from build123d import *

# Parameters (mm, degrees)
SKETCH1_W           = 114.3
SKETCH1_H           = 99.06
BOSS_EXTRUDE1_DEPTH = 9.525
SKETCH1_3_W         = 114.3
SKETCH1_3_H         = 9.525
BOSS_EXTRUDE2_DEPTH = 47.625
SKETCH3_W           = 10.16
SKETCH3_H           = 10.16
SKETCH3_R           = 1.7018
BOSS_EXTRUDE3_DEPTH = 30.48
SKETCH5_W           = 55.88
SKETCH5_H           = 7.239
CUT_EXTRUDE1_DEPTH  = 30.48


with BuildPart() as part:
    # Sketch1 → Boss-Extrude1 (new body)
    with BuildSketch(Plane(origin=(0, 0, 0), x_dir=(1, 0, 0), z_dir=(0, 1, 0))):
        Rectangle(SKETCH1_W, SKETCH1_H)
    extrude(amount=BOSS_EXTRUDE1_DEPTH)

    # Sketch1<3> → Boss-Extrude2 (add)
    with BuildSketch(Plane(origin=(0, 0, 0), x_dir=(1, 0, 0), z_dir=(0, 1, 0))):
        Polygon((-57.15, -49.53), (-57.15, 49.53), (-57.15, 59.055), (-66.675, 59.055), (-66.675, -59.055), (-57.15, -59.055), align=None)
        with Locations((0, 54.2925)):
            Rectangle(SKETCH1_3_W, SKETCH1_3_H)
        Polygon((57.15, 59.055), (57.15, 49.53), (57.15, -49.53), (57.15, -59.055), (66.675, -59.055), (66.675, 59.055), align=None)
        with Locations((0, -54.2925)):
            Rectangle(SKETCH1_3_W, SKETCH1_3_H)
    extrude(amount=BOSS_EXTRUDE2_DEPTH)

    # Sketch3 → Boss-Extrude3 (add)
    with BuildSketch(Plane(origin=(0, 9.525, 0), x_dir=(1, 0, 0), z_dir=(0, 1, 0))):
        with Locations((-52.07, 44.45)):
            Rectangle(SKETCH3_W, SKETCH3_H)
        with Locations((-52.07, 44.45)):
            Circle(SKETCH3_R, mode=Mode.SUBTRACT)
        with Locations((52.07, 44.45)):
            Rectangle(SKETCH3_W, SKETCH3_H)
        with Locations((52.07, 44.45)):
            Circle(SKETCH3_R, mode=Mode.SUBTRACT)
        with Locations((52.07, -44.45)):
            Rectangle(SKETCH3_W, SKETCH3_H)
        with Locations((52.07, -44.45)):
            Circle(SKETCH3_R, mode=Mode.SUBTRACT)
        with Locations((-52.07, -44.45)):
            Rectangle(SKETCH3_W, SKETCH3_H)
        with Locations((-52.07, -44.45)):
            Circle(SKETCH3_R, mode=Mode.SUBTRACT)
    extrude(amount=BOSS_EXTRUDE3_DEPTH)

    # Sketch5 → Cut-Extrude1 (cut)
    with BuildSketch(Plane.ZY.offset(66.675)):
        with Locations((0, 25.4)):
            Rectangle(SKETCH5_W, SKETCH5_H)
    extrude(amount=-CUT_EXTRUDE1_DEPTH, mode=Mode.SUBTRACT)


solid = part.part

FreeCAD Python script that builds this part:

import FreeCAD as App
import Part
import Sketcher
Q = App.Units.Quantity


def add_polygon(sketch, points):
    """Adds a closed chain of lines whose ends are joined by coincident constraints."""
    first, n = sketch.GeometryCount, len(points)
    for a, b in zip(points, points[1:] + points[:1]):
        sketch.addGeometry(Part.LineSegment(App.Vector(*a, 0), App.Vector(*b, 0)), False)
    for i in range(n):
        sketch.addConstraint(Sketcher.Constraint("Coincident", first + i, 2, first + (i + 1) % n, 1))

doc = App.newDocument("Part")
body = doc.addObject("PartDesign::Body", "Body")

sketch1 = body.newObject("Sketcher::SketchObject", "Sketch")
sketch1.AttachmentSupport = (doc.getObject("XZ_Plane"), [""])
sketch1.MapMode = "FlatFace"
add_polygon(sketch1, [(-57, -50), (-57, 50), (57, 50), (57, -50)])
sketch1.addConstraint([
    Sketcher.Constraint("Vertical", 0),
    Sketcher.Constraint("Horizontal", 1),
    Sketcher.Constraint("Vertical", 2),
    Sketcher.Constraint("Horizontal", 3),
    Sketcher.Constraint("Symmetric", 0, 2, 2, 2, -1, 1),
    Sketcher.Constraint("DistanceX", 1, 1, 1, 2, Q("4.5 in")),
    Sketcher.Constraint("DistanceY", 0, 1, 0, 2, Q("3.9 in")),
])
pad1 = body.newObject("PartDesign::Pad", "Pad")
pad1.Profile = sketch1
pad1.Length = Q("0.375 in")
pad1.Reversed = True

sketch2 = body.newObject("Sketcher::SketchObject", "Sketch001")
sketch2.AttachmentSupport = (doc.getObject("XZ_Plane"), [""])
sketch2.MapMode = "FlatFace"
add_polygon(sketch2, [(-67, -59), (-67, 59), (67, 59), (67, -59)])
add_polygon(sketch2, [(-57, 50), (-57, -50), (57, -50), (57, 50)])
sketch2.addConstraint([
    Sketcher.Constraint("Vertical", 0),
    Sketcher.Constraint("Horizontal", 1),
    Sketcher.Constraint("Vertical", 2),
    Sketcher.Constraint("Horizontal", 3),
    Sketcher.Constraint("Vertical", 4),
    Sketcher.Constraint("Horizontal", 5),
    Sketcher.Constraint("Vertical", 6),
    Sketcher.Constraint("Horizontal", 7),
    Sketcher.Constraint("Symmetric", 0, 2, 2, 2, -1, 1),
    Sketcher.Constraint("Symmetric", 4, 2, 6, 2, -1, 1),
    Sketcher.Constraint("DistanceX", 5, 1, 5, 2, Q("4.5 in")),
    Sketcher.Constraint("DistanceY", 4, 2, 4, 1, Q("3.9 in")),
    Sketcher.Constraint("DistanceX", 1, 1, 1, 2, Q("5.25 in")),
    Sketcher.Constraint("DistanceY", 0, 1, 0, 2, Q("4.65 in")),
])
pad2 = body.newObject("PartDesign::Pad", "Pad001")
pad2.Profile = sketch2
pad2.Length = Q("1.875 in")
pad2.Reversed = True

sketch3 = body.newObject("Sketcher::SketchObject", "Sketch002")
sketch3.AttachmentSupport = (doc.getObject("XZ_Plane"), [""])
sketch3.MapMode = "FlatFace"
sketch3.AttachmentOffset = App.Placement(App.Vector(0, 0, -0.375 * 25.4), App.Rotation())
add_polygon(sketch3, [(-57.1, -49.5), (-57.1, -39.4), (-47, -39.4), (-47, -49.5)])
sketch3.addGeometry(Part.Circle(App.Vector(-52.1, -44.5, 0), App.Vector(0, 0, 1), 1.7), False)
add_polygon(sketch3, [(47, -49.5), (47, -39.4), (57.1, -39.4), (57.1, -49.5)])
sketch3.addGeometry(Part.Circle(App.Vector(52.1, -44.5, 0), App.Vector(0, 0, 1), 1.7), False)
add_polygon(sketch3, [(47, 39.4), (47, 49.5), (57.1, 49.5), (57.1, 39.4)])
sketch3.addGeometry(Part.Circle(App.Vector(52.1, 44.5, 0), App.Vector(0, 0, 1), 1.7), False)
add_polygon(sketch3, [(-57.1, 39.4), (-57.1, 49.5), (-47, 49.5), (-47, 39.4)])
sketch3.addGeometry(Part.Circle(App.Vector(-52.1, 44.5, 0), App.Vector(0, 0, 1), 1.7), False)
sketch3.addConstraint([
    Sketcher.Constraint("Vertical", 0),
    Sketcher.Constraint("Horizontal", 1),
    Sketcher.Constraint("Vertical", 2),
    Sketcher.Constraint("Horizontal", 3),
    Sketcher.Constraint("Vertical", 5),
    Sketcher.Constraint("Horizontal", 6),
    Sketcher.Constraint("Vertical", 7),
    Sketcher.Constraint("Horizontal", 8),
    Sketcher.Constraint("Vertical", 10),
    Sketcher.Constraint("Horizontal", 11),
    Sketcher.Constraint("Vertical", 12),
    Sketcher.Constraint("Horizontal", 13),
    Sketcher.Constraint("Vertical", 15),
    Sketcher.Constraint("Horizontal", 16),
    Sketcher.Constraint("Vertical", 17),
    Sketcher.Constraint("Horizontal", 18),
    Sketcher.Constraint("Equal", 4, 9),
    Sketcher.Constraint("Equal", 9, 14),
    Sketcher.Constraint("Equal", 14, 19),
    Sketcher.Constraint("Symmetric", 4, 3, 14, 3, -1, 1),
    Sketcher.Constraint("Symmetric", 9, 3, 19, 3, -1, 1),
    Sketcher.Constraint("Symmetric", 2, 2, 10, 2, -1, 1),
    Sketcher.Constraint("Symmetric", 0, 2, 12, 2, -1, 1),
    Sketcher.Constraint("Symmetric", 7, 2, 15, 2, -1, 1),
    Sketcher.Constraint("Symmetric", 5, 2, 17, 2, -1, 1),
    Sketcher.Constraint("Symmetric", 4, 3, 9, 3, -2),
    Sketcher.Constraint("Symmetric", 1, 2, 5, 2, -2),
    Sketcher.Constraint("Symmetric", 3, 2, 7, 2, -2),
    Sketcher.Constraint("Equal", 18, 0),
    Sketcher.Constraint("Diameter", 4, Q("0.134 in")),
    Sketcher.Constraint("DistanceX", 1, 1, 1, 2, Q("0.4 in")),
    Sketcher.Constraint("DistanceX", 4, 3, 9, 3, Q("4.1 in")),
    Sketcher.Constraint("DistanceY", 9, 3, 14, 3, Q("3.5 in")),
    Sketcher.Constraint("DistanceX", 0, 2, 4, 3, Q("0.2 in")),
    Sketcher.Constraint("DistanceY", 4, 3, 0, 2, Q("0.2 in")),
])
pad3 = body.newObject("PartDesign::Pad", "Pad002")
pad3.Profile = sketch3
pad3.Length = Q("1.2 in")
pad3.Reversed = True

sketch4 = body.newObject("Sketcher::SketchObject", "Sketch003")
sketch4.AttachmentSupport = (doc.getObject("YZ_Plane"), [""])
sketch4.MapMode = "FlatFace"
sketch4.AttachmentOffset = App.Placement(App.Vector(0, 0, -2.625 * 25.4), App.Rotation())
add_polygon(sketch4, [(29, -28), (22, -28), (22, 28), (29, 28)])
sketch4.addConstraint([
    Sketcher.Constraint("Horizontal", 0),
    Sketcher.Constraint("Vertical", 1),
    Sketcher.Constraint("Horizontal", 2),
    Sketcher.Constraint("Vertical", 3),
    Sketcher.Constraint("DistanceY", 1, 1, 1, 2, Q("2.2 in")),
    Sketcher.Constraint("DistanceY", 0, 2, -1, 1, Q("1.1 in")),
    Sketcher.Constraint("DistanceX", 0, 2, 0, 1, Q("0.285 in")),
    Sketcher.Constraint("DistanceX", -1, 1, 0, 2, Q("0.8575 in")),
])
pocket1 = body.newObject("PartDesign::Pocket", "Pocket")
pocket1.Profile = sketch4
pocket1.Length = Q("1.2 in")
pocket1.Reversed = True

doc.recompute()
